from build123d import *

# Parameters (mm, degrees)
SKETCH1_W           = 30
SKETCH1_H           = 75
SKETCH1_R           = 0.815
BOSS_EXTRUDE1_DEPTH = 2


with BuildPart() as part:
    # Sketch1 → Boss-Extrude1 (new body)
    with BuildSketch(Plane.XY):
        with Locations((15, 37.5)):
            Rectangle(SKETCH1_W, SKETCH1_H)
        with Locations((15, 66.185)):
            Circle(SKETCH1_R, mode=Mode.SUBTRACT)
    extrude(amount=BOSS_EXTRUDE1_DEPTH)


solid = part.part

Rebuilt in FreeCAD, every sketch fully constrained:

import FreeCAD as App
import Part
import Sketcher
from FreeCAD import Vector
Q = App.Units.Quantity

doc = App.newDocument("Part")
body = doc.addObject("PartDesign::Body", "Body")

# Sketch on XY plane
sketch1 = body.newObject("Sketcher::SketchObject", "Sketch")
sketch1.AttachmentSupport = (doc.getObject("XY_Plane"), [""])
sketch1.MapMode = "FlatFace"
sketch1.addGeometry([
    Part.LineSegment(Vector(0, 75, 0), Vector(0, 0, 0)),  # 0
    Part.LineSegment(Vector(0, 0, 0), Vector(30, 0, 0)),  # 1
    Part.LineSegment(Vector(30, 0, 0), Vector(30, 75, 0)),  # 2
    Part.LineSegment(Vector(30, 75, 0), Vector(0, 75, 0)),  # 3
    Part.Circle(Vector(15, 66.2, 0), Vector(0, 0, 1), 0.8),  # 4
], False)
sketch1.addConstraint([
    Sketcher.Constraint("Coincident", 0, 2, 1, 1),
    Sketcher.Constraint("Coincident", 1, 2, 2, 1),
    Sketcher.Constraint("Coincident", 2, 2, 3, 1),
    Sketcher.Constraint("Coincident", 3, 2, 0, 1),
    Sketcher.Constraint("Vertical", 0),
    Sketcher.Constraint("Horizontal", 1),
    Sketcher.Constraint("Vertical", 2),
    Sketcher.Constraint("Horizontal", 3),
    Sketcher.Constraint("Coincident", 0, 2, -1, 1),
    Sketcher.Constraint("Diameter", 4, Q("1.63 mm")),
    Sketcher.Constraint("DistanceX", 1, 1, 1, 2, Q("30 mm")),
    Sketcher.Constraint("DistanceY", 0, 2, 0, 1, Q("75 mm")),
    Sketcher.Constraint("DistanceX", -1, 1, 4, 3, Q("15 mm")),
    Sketcher.Constraint("DistanceY", -1, 1, 4, 3, Q("66.185 mm")),
])
pad1 = body.newObject("PartDesign::Pad", "Pad")
pad1.Profile = sketch1
pad1.Length = 2

doc.recompute()
